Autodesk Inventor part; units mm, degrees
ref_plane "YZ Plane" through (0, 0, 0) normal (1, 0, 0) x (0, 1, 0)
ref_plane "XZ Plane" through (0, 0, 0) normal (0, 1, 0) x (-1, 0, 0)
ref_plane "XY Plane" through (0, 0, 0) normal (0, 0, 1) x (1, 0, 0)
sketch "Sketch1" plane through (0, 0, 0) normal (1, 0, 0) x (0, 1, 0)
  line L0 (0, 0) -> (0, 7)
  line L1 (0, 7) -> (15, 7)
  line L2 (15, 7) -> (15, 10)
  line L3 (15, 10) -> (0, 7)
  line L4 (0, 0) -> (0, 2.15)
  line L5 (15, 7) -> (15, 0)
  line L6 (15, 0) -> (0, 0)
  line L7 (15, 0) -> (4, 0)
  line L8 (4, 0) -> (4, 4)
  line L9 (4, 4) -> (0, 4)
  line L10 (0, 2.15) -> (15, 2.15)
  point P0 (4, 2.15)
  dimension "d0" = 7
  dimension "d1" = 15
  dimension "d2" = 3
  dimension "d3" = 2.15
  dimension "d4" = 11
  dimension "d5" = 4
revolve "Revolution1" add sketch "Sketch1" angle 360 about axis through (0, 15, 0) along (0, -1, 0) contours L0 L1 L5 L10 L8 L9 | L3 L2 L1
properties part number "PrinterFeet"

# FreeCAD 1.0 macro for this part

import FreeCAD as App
import Part
import Sketcher
from FreeCAD import Vector


def add_polygon(sketch, points):
    """Adds a closed chain of lines whose ends are joined by coincident constraints."""
    first, n = sketch.GeometryCount, len(points)
    for a, b in zip(points, points[1:] + points[:1]):
        sketch.addGeometry(Part.LineSegment(App.Vector(*a, 0), App.Vector(*b, 0)), False)
    for i in range(n):
        sketch.addConstraint(Sketcher.Constraint("Coincident", first + i, 2, first + (i + 1) % n, 1))

doc = App.newDocument("Part")
body = doc.addObject("PartDesign::Body", "Body")

# Sketch on YZ plane
sketch1 = body.newObject("Sketcher::SketchObject", "Sketch")
sketch1.AttachmentSupport = (doc.getObject("YZ_Plane"), [""])
sketch1.MapMode = "FlatFace"
add_polygon(sketch1, [(0, 7), (0, 4), (4, 4), (4, 2.1), (15, 2.1), (15, 10)])  # lines 0-5
sketch1.addConstraint([
    Sketcher.Constraint("Vertical", 0),
    Sketcher.Constraint("Horizontal", 1),
    Sketcher.Constraint("Vertical", 2),
    Sketcher.Constraint("Horizontal", 3),
    Sketcher.Constraint("Vertical", 4),
    Sketcher.Constraint("PointOnObject", 0, 2, -2),
    Sketcher.Constraint("DistanceX", 1, 1, 1, 2, 4.0),
    Sketcher.Constraint("DistanceX", 3, 1, 3, 2, 11.0),
    Sketcher.Constraint("DistanceY", 0, 2, 0, 1, 3.0),
    Sketcher.Constraint("DistanceY", -1, 1, 0, 2, 4.0),
    Sketcher.Constraint("DistanceY", 5, 2, 4, 2, 3.0),
    Sketcher.Constraint("DistanceY", -1, 1, 2, 2, 2.15),
])
revolution = body.newObject("PartDesign::Revolution", "Revolution")
revolution.Profile = sketch1
revolution.ReferenceAxis = (sketch1, ["H_Axis"])
revolution.Angle = 360

doc.recompute()
